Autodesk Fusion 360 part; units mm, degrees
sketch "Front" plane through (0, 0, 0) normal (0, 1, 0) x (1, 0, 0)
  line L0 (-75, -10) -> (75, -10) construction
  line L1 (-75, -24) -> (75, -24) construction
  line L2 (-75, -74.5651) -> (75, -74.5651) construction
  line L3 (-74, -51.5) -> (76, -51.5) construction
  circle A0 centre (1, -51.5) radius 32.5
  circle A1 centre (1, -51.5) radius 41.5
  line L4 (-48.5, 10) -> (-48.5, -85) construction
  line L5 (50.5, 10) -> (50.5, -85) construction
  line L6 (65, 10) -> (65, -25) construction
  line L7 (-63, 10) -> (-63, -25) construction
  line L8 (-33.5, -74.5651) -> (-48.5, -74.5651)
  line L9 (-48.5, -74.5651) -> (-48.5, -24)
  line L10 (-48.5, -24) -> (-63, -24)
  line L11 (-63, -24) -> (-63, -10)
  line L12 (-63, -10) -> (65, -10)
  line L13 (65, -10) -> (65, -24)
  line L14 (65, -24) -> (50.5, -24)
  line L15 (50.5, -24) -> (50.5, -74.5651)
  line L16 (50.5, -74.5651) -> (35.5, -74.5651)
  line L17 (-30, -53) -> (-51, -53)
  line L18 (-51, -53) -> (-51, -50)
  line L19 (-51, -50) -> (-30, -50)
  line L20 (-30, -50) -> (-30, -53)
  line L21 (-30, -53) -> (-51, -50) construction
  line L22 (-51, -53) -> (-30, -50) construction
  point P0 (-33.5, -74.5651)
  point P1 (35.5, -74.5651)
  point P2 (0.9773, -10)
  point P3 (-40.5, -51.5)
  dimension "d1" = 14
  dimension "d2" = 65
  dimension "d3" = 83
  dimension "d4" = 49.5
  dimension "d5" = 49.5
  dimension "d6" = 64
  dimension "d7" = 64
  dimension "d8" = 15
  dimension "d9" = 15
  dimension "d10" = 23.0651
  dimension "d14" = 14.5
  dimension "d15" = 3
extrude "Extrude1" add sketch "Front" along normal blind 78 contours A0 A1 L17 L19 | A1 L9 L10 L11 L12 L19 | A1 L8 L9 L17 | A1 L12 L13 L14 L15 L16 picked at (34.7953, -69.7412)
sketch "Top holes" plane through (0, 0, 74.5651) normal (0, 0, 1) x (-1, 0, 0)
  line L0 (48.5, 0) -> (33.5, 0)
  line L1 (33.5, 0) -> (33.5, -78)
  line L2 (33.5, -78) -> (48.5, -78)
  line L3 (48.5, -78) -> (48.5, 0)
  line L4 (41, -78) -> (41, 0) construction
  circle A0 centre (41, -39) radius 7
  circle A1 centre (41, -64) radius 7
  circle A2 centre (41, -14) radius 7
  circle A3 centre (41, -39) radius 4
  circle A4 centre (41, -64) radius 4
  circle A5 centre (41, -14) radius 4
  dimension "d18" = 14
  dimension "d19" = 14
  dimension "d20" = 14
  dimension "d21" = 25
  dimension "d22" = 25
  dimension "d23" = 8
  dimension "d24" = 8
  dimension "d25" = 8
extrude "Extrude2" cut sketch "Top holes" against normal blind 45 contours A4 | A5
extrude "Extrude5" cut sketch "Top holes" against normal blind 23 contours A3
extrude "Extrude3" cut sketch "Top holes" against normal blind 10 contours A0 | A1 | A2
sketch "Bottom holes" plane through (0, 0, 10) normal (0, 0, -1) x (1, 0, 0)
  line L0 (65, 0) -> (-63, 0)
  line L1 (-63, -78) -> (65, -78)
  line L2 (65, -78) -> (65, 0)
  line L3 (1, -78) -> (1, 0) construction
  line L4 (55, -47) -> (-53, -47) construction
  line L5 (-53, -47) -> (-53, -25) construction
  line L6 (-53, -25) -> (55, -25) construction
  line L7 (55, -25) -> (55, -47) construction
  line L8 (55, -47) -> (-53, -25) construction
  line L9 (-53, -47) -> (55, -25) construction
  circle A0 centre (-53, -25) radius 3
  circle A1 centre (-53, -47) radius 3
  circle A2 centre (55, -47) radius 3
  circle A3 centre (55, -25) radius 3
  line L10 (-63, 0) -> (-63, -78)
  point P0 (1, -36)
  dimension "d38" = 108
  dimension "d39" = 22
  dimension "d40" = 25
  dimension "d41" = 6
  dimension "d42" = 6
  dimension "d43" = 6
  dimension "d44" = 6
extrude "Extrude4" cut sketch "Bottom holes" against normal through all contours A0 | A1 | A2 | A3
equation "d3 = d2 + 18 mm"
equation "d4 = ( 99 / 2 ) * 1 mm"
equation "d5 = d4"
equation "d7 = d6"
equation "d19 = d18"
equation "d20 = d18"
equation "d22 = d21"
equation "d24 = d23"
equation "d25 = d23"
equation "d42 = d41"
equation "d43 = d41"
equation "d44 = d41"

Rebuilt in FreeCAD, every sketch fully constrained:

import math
import FreeCAD as App
import Part
import Sketcher

V = App.Vector
Q = App.Units.Quantity

doc = App.newDocument("Part")
body = doc.addObject("PartDesign::Body", "Body")

sketch1 = doc.addObject("Sketcher::SketchObject", "Sketch")
body.addObject(sketch1)
sketch1.AttachmentSupport = (doc.XZ_Plane, [""])
sketch1.MapMode = "FlatFace"
sketch1.addGeometry([
    Part.ArcOfCircle(Part.Circle(V(1, 51.5, 0), V(0, 0, 1), 32.5), math.radians(-177.35464), math.radians(177.35464)),
    Part.LineSegment(V(-31.465366, 53, 0), V(-48.5, 53, 0)),
    Part.LineSegment(V(-48.5, 53, 0), V(-48.5, 74.5651, 0)),
    Part.LineSegment(V(-48.5, 74.5651, 0), V(-33.5, 74.5651, 0)),
    Part.ArcOfCircle(Part.Circle(V(1, 51.5, 0), V(0, 0, 1), 41.5), math.radians(33.764851), math.radians(146.235149)),
    Part.LineSegment(V(35.5, 74.5651, 0), V(50.5, 74.5651, 0)),
    Part.LineSegment(V(50.5, 74.5651, 0), V(50.5, 24, 0)),
    Part.LineSegment(V(50.5, 24, 0), V(65, 24, 0)),
    Part.LineSegment(V(65, 24, 0), V(65, 10, 0)),
    Part.LineSegment(V(65, 10, 0), V(-63, 10, 0)),
    Part.LineSegment(V(-63, 10, 0), V(-63, 24, 0)),
    Part.LineSegment(V(-63, 24, 0), V(-48.5, 24, 0)),
    Part.LineSegment(V(-48.5, 24, 0), V(-48.5, 50, 0)),
    Part.LineSegment(V(-48.5, 50, 0), V(-31.465366, 50, 0)),
], False)
sketch1.addConstraint([
    Sketcher.Constraint("Coincident", 0, 2, 1, 1),
    Sketcher.Constraint("Coincident", 1, 2, 2, 1),
    Sketcher.Constraint("Coincident", 2, 2, 3, 1),
    Sketcher.Constraint("Coincident", 3, 2, 4, 2),
    Sketcher.Constraint("Coincident", 4, 1, 5, 1),
    Sketcher.Constraint("Coincident", 5, 2, 6, 1),
    Sketcher.Constraint("Coincident", 6, 2, 7, 1),
    Sketcher.Constraint("Coincident", 7, 2, 8, 1),
    Sketcher.Constraint("Coincident", 8, 2, 9, 1),
    Sketcher.Constraint("Coincident", 9, 2, 10, 1),
    Sketcher.Constraint("Coincident", 10, 2, 11, 1),
    Sketcher.Constraint("Coincident", 11, 2, 12, 1),
    Sketcher.Constraint("Coincident", 12, 2, 13, 1),
    Sketcher.Constraint("Coincident", 13, 2, 0, 1),
    Sketcher.Constraint("Horizontal", 1),
    Sketcher.Constraint("Vertical", 2),
    Sketcher.Constraint("Horizontal", 3),
    Sketcher.Constraint("Horizontal", 5),
    Sketcher.Constraint("Vertical", 6),
    Sketcher.Constraint("Horizontal", 7),
    Sketcher.Constraint("Vertical", 8),
    Sketcher.Constraint("Horizontal", 9),
    Sketcher.Constraint("Vertical", 10),
    Sketcher.Constraint("Horizontal", 11),
    Sketcher.Constraint("Vertical", 12),
    Sketcher.Constraint("Horizontal", 13),
    Sketcher.Constraint("Coincident", 4, 3, 0, 3),
    Sketcher.Constraint("Horizontal", 3, 2, 4, 1),
    Sketcher.Constraint("Horizontal", 7, 2, 10, 2),
    Sketcher.Constraint("Vertical", 2, 2, 11, 2),
    Sketcher.Constraint("Vertical", 0, 2, 13, 2),
    Sketcher.Constraint("Equal", 3, 5),
    Sketcher.Constraint("Equal", 7, 11),
    Sketcher.Constraint("Radius", 0, Q("32.5 mm")),
    Sketcher.Constraint("Radius", 4, Q("41.5 mm")),
    Sketcher.Constraint("DistanceX", 3, 1, 3, 2, Q("15 mm")),
    Sketcher.Constraint("DistanceY", 8, 2, 8, 1, Q("14 mm")),
    Sketcher.Constraint("DistanceX", 7, 1, 7, 2, Q("14.5 mm")),
    Sketcher.Constraint("DistanceX", -1, 1, 7, 2, Q("65 mm")),
    Sketcher.Constraint("DistanceX", 0, 3, 7, 2, Q("64 mm")),
    Sketcher.Constraint("DistanceY", 12, 2, 1, 2, Q("3 mm")),
    Sketcher.Constraint("DistanceY", 12, 1, 12, 2, Q("26 mm")),
    Sketcher.Constraint("DistanceY", -1, 1, 0, 2, Q("53 mm")),
])
pad1 = doc.addObject("PartDesign::Pad", "Pad")
body.addObject(pad1)
pad1.Profile = sketch1
pad1.Length = 78
pad1.Reversed = True

sketch2 = doc.addObject("Sketcher::SketchObject", "Sketch001")
body.addObject(sketch2)
sketch2.AttachmentSupport = (doc.XY_Plane, [""])
sketch2.MapMode = "FlatFace"
sketch2.AttachmentOffset = App.Placement(V(0, 0, 74.5651), App.Rotation())
sketch2.addGeometry([
    Part.Circle(V(-41, 64, 0), V(0, 0, 1), 4),
    Part.Circle(V(-41, 14, 0), V(0, 0, 1), 4),
], False)
sketch2.addConstraint([
    Sketcher.Constraint("Equal", 0, 1),
    Sketcher.Constraint("Vertical", 0, 3, 1, 3),
    Sketcher.Constraint("Diameter", 0, Q("8 mm")),
    Sketcher.Constraint("DistanceY", -1, 1, 1, 3, Q("14 mm")),
    Sketcher.Constraint("DistanceX", 0, 3, -1, 1, Q("41 mm")),
    Sketcher.Constraint("DistanceY", -1, 1, 0, 3, Q("64 mm")),
])
pocket1 = doc.addObject("PartDesign::Pocket", "Pocket")
body.addObject(pocket1)
pocket1.Profile = sketch2
pocket1.Length = 45

sketch3 = doc.addObject("Sketcher::SketchObject", "Sketch002")
body.addObject(sketch3)
sketch3.AttachmentSupport = (doc.XY_Plane, [""])
sketch3.MapMode = "FlatFace"
sketch3.AttachmentOffset = App.Placement(V(0, 0, 74.5651), App.Rotation())
sketch3.addGeometry(Part.Circle(V(-41, 39, 0), V(0, 0, 1), 4), False)
sketch3.addConstraint([
    Sketcher.Constraint("Diameter", 0, Q("8 mm")),
    Sketcher.Constraint("DistanceX", 0, 3, -1, 1, Q("41 mm")),
    Sketcher.Constraint("DistanceY", -1, 1, 0, 3, Q("39 mm")),
])
pocket2 = doc.addObject("PartDesign::Pocket", "Pocket001")
body.addObject(pocket2)
pocket2.Profile = sketch3
pocket2.Length = 23

sketch4 = doc.addObject("Sketcher::SketchObject", "Sketch003")
body.addObject(sketch4)
sketch4.AttachmentSupport = (doc.XY_Plane, [""])
sketch4.MapMode = "FlatFace"
sketch4.AttachmentOffset = App.Placement(V(0, 0, 74.5651), App.Rotation())
sketch4.addGeometry([
    Part.Circle(V(-41, 39, 0), V(0, 0, 1), 7),
    Part.Circle(V(-41, 39, 0), V(0, 0, 1), 4),
    Part.Circle(V(-41, 64, 0), V(0, 0, 1), 7),
    Part.Circle(V(-41, 64, 0), V(0, 0, 1), 4),
    Part.Circle(V(-41, 14, 0), V(0, 0, 1), 7),
    Part.Circle(V(-41, 14, 0), V(0, 0, 1), 4),
], False)
sketch4.addConstraint([
    Sketcher.Constraint("Coincident", 1, 3, 0, 3),
    Sketcher.Constraint("Coincident", 3, 3, 2, 3),
    Sketcher.Constraint("Coincident", 5, 3, 4, 3),
    Sketcher.Constraint("Equal", 0, 2),
    Sketcher.Constraint("Equal", 1, 3),
    Sketcher.Constraint("Equal", 2, 4),
    Sketcher.Constraint("Equal", 3, 5),
    Sketcher.Constraint("Vertical", 1, 3, 2, 3),
    Sketcher.Constraint("Vertical", 3, 3, 4, 3),
    Sketcher.Constraint("Diameter", 0, Q("14 mm")),
    Sketcher.Constraint("Diameter", 1, Q("8 mm")),
    Sketcher.Constraint("DistanceY", -1, 1, 4, 3, Q("14 mm")),
    Sketcher.Constraint("DistanceY", 0, 3, 2, 3, Q("25 mm")),
    Sketcher.Constraint("DistanceY", 4, 3, 0, 3, Q("25 mm")),
    Sketcher.Constraint("DistanceX", 0, 3, -1, 1, Q("41 mm")),
])
pocket3 = doc.addObject("PartDesign::Pocket", "Pocket002")
body.addObject(pocket3)
pocket3.Profile = sketch4
pocket3.Length = 10

sketch5 = doc.addObject("Sketcher::SketchObject", "Sketch004")
body.addObject(sketch5)
sketch5.AttachmentSupport = (doc.XY_Plane, [""])
sketch5.MapMode = "FlatFace"
sketch5.AttachmentOffset = App.Placement(V(0, 0, 10), App.Rotation())
sketch5.addGeometry([
    Part.Circle(V(-53, 25, 0), V(0, 0, 1), 3),
    Part.Circle(V(-53, 47, 0), V(0, 0, 1), 3),
    Part.Circle(V(55, 47, 0), V(0, 0, 1), 3),
    Part.Circle(V(55, 25, 0), V(0, 0, 1), 3),
], False)
sketch5.addConstraint([
    Sketcher.Constraint("Equal", 0, 1),
    Sketcher.Constraint("Equal", 1, 2),
    Sketcher.Constraint("Equal", 2, 3),
    Sketcher.Constraint("Horizontal", 1, 3, 2, 3),
    Sketcher.Constraint("Horizontal", 0, 3, 3, 3),
    Sketcher.Constraint("Vertical", 0, 3, 1, 3),
    Sketcher.Constraint("Vertical", 2, 3, 3, 3),
    Sketcher.Constraint("Diameter", 0, Q("6 mm")),
    Sketcher.Constraint("DistanceY", -1, 1, 0, 3, Q("25 mm")),
    Sketcher.Constraint("DistanceY", 0, 3, 1, 3, Q("22 mm")),
    Sketcher.Constraint("DistanceX", 1, 3, 2, 3, Q("108 mm")),
    Sketcher.Constraint("DistanceX", 0, 3, -1, 1, Q("53 mm")),
])
pocket4 = doc.addObject("PartDesign::Pocket", "Pocket003")
body.addObject(pocket4)
pocket4.Profile = sketch5
pocket4.Type = "ThroughAll"
pocket4.Reversed = True

doc.recompute()
